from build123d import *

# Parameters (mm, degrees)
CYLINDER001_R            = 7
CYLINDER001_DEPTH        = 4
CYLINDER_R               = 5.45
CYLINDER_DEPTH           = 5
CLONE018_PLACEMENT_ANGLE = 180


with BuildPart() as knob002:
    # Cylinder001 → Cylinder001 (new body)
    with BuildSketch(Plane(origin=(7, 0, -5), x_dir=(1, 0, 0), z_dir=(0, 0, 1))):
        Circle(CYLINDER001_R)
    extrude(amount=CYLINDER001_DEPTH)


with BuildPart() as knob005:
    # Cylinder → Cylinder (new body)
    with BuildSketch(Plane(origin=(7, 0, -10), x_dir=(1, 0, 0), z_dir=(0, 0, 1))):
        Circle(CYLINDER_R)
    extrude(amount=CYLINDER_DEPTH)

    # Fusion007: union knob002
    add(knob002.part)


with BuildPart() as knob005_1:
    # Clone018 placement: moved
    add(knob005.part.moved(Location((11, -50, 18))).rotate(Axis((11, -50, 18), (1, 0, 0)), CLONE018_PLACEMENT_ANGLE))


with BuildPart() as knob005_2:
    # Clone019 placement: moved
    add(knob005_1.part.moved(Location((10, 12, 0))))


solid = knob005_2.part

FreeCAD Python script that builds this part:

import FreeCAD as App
import Part
import Sketcher
from FreeCAD import Vector

doc = App.newDocument("Part")
body = doc.addObject("PartDesign::Body", "Body")

sketch1 = doc.addObject("Sketcher::SketchObject", "Sketch")
body.addObject(sketch1)
sketch1.AttachmentSupport = (doc.XY_Plane, [""])
sketch1.MapMode = "FlatFace"
sketch1.AttachmentOffset = App.Placement(Vector(0, 0, -5), App.Rotation())
sketch1.addGeometry(Part.Circle(Vector(7, 0, 0), Vector(0, 0, 1), 7), False)
sketch1.addConstraint([
    Sketcher.Constraint("PointOnObject", 0, 3, -1),
    Sketcher.Constraint("Diameter", 0, 14.0),
    Sketcher.Constraint("DistanceX", -1, 1, 0, 3, 7.0),
])
pad1 = doc.addObject("PartDesign::Pad", "Pad")
body.addObject(pad1)
pad1.Profile = sketch1
pad1.Length = 4
body2 = doc.addObject("PartDesign::Body", "Body001")

sketch2 = doc.addObject("Sketcher::SketchObject", "Sketch001")
body2.addObject(sketch2)
sketch2.AttachmentSupport = (doc.getObject("XY_Plane001"), [""])
sketch2.MapMode = "FlatFace"
sketch2.AttachmentOffset = App.Placement(Vector(0, 0, -10), App.Rotation())
sketch2.addGeometry(Part.Circle(Vector(7, 0, 0), Vector(0, 0, 1), 5.45), False)
sketch2.addConstraint([
    Sketcher.Constraint("PointOnObject", 0, 3, -1),
    Sketcher.Constraint("Diameter", 0, 10.9),
    Sketcher.Constraint("DistanceX", -1, 1, 0, 3, 7.0),
])
pad2 = doc.addObject("PartDesign::Pad", "Pad001")
body2.addObject(pad2)
pad2.Profile = sketch2
pad2.Length = 5
doc.recompute()

boolean = doc.addObject("PartDesign::Boolean", "Boolean")
body2.addObject(boolean)
boolean.Type = "Fuse"
boolean.addObjects([body])
body3 = doc.addObject("PartDesign::Body", "Body002")
doc.recompute()

body2.Placement = App.Placement(Vector(11, -50, 18), App.Rotation(Vector(1, 0, 0), 180))
boolean2 = doc.addObject("PartDesign::Boolean", "Boolean001")
body3.addObject(boolean2)
boolean2.Type = "Fuse"
boolean2.addObjects([body2])
body4 = doc.addObject("PartDesign::Body", "Body003")
doc.recompute()

body3.Placement = App.Placement(Vector(10, 12, 0), App.Rotation(Vector(0, 0, 1), 0))
boolean3 = doc.addObject("PartDesign::Boolean", "Boolean002")
body4.addObject(boolean3)
boolean3.Type = "Fuse"
boolean3.addObjects([body3])

doc.recompute()
